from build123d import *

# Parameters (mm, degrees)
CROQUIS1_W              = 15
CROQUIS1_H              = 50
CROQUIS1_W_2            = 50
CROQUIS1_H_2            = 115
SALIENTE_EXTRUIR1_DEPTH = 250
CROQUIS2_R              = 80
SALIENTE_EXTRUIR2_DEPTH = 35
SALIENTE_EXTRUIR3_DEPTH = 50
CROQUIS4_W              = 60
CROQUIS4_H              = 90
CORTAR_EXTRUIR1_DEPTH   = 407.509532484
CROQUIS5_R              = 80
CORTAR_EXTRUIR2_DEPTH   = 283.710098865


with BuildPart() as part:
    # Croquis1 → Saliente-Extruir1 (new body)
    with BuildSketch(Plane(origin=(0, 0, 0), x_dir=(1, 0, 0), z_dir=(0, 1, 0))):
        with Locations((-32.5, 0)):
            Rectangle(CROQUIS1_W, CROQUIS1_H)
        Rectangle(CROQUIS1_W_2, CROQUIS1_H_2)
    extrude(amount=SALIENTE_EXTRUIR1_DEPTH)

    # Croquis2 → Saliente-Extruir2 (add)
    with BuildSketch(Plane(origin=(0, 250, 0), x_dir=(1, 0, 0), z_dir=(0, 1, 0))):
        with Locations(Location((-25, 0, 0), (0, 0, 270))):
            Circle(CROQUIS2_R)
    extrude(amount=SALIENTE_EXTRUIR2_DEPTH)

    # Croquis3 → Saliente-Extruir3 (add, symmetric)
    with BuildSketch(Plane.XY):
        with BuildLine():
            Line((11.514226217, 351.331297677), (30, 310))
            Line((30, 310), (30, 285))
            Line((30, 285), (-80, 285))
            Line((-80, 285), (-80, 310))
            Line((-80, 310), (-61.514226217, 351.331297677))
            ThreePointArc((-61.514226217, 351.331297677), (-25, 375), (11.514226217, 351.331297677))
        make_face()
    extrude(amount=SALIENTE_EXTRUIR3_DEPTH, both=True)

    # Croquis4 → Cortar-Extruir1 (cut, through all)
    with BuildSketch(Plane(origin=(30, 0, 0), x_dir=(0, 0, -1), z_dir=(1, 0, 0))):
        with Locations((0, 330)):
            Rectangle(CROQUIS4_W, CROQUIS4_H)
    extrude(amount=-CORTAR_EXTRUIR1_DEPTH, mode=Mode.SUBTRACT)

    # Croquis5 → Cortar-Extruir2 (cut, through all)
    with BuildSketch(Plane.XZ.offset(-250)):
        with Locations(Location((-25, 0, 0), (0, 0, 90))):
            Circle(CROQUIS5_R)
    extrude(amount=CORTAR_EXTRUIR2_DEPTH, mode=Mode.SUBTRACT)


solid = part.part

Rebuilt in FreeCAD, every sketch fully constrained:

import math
import FreeCAD as App
import Part
import Sketcher

V = App.Vector
Q = App.Units.Quantity

doc = App.newDocument("Part")
params = doc.addObject("Spreadsheet::Sheet", "Params")
for row, (alias, value) in enumerate([
    ("sketch1_width", "15 mm"),
    ("sketch1_width2", "50 mm"),
    ("sketch1_height", "115 mm"),
    ("pad1_length", "250 mm"),
    ("sketch2_diameter", "160 mm"),
    ("pad2_length", "35 mm"),
    ("sketch3_radius", "40 mm"),
    ("sketch3_width", "110 mm"),
    ("sketch3_height", "25 mm"),
    ("pad3_length", "100 mm"),
    ("sketch4_width", "90 mm"),
    ("sketch4_height", "60 mm"),
    ("sketch5_diameter", "160 mm"),
], start=1):
    params.set(f"A{row}", alias)
    params.set(f"B{row}", "=" + value)
    params.setAlias(f"B{row}", alias)

body = doc.addObject("PartDesign::Body", "Body")

# Sketch on XZ plane
sketch1 = body.newObject("Sketcher::SketchObject", "Sketch")
sketch1.AttachmentSupport = (doc.getObject("XZ_Plane"), [""])
sketch1.MapMode = "FlatFace"
sketch1.addGeometry([
    Part.LineSegment(V(-40, -25, 0), V(-40, 25, 0)),  # 0
    Part.LineSegment(V(-40, 25, 0), V(-25, 25, 0)),  # 1
    Part.LineSegment(V(-25, 25, 0), V(-25, 58, 0)),  # 2
    Part.LineSegment(V(-25, 58, 0), V(25, 58, 0)),  # 3
    Part.LineSegment(V(25, 58, 0), V(25, -58, 0)),  # 4
    Part.LineSegment(V(25, -58, 0), V(-25, -58, 0)),  # 5
    Part.LineSegment(V(-25, -58, 0), V(-25, -25, 0)),  # 6
    Part.LineSegment(V(-25, -25, 0), V(-40, -25, 0)),  # 7
], False)
sketch1.addConstraint([
    Sketcher.Constraint("Coincident", 0, 2, 1, 1),
    Sketcher.Constraint("Coincident", 1, 2, 2, 1),
    Sketcher.Constraint("Coincident", 2, 2, 3, 1),
    Sketcher.Constraint("Coincident", 3, 2, 4, 1),
    Sketcher.Constraint("Coincident", 4, 2, 5, 1),
    Sketcher.Constraint("Coincident", 5, 2, 6, 1),
    Sketcher.Constraint("Coincident", 6, 2, 7, 1),
    Sketcher.Constraint("Coincident", 7, 2, 0, 1),
    Sketcher.Constraint("Vertical", 0),
    Sketcher.Constraint("Horizontal", 1),
    Sketcher.Constraint("Vertical", 2),
    Sketcher.Constraint("Horizontal", 3),
    Sketcher.Constraint("Vertical", 4),
    Sketcher.Constraint("Horizontal", 5),
    Sketcher.Constraint("Vertical", 6),
    Sketcher.Constraint("Horizontal", 7),
    Sketcher.Constraint("Symmetric", 2, 2, 4, 2, -1, 1),
    Sketcher.Constraint("Symmetric", 1, 2, 6, 2, -1),
    Sketcher.Constraint("Equal", 5, 0),
    Sketcher.Constraint("DistanceX", 1, 1, 1, 2, Q("15 mm")),
    Sketcher.Constraint("DistanceX", 3, 1, 3, 2, Q("50 mm")),
    Sketcher.Constraint("DistanceY", 4, 2, 4, 1, Q("115 mm")),
])
sketch1.setExpression("Constraints[19]", "Params.sketch1_width")
sketch1.setExpression("Constraints[20]", "Params.sketch1_width2")
sketch1.setExpression("Constraints[21]", "Params.sketch1_height")
pad1 = body.newObject("PartDesign::Pad", "Pad")
pad1.Profile = sketch1
pad1.setExpression("Length", "Params.pad1_length")
pad1.Reversed = True

# Sketch on XZ plane
sketch2 = body.newObject("Sketcher::SketchObject", "Sketch001")
sketch2.AttachmentSupport = (doc.getObject("XZ_Plane"), [""])
sketch2.MapMode = "FlatFace"
sketch2.AttachmentOffset = App.Placement(V(0, 0, -250), App.Rotation())
sketch2.addGeometry(Part.Circle(V(-25, 0, 0), V(0, 0, 1), 80), False)
sketch2.addConstraint([
    Sketcher.Constraint("PointOnObject", 0, 3, -1),
    Sketcher.Constraint("Diameter", 0, Q("160 mm")),
    Sketcher.Constraint("DistanceX", 0, 3, -1, 1, Q("25 mm")),
])
sketch2.setExpression("Constraints[1]", "Params.sketch2_diameter")
pad2 = body.newObject("PartDesign::Pad", "Pad001")
pad2.Profile = sketch2
pad2.setExpression("Length", "Params.pad2_length")
pad2.Reversed = True

# Sketch on XY plane
sketch3 = body.newObject("Sketcher::SketchObject", "Sketch002")
sketch3.AttachmentSupport = (doc.getObject("XY_Plane"), [""])
sketch3.MapMode = "FlatFace"
sketch3.addGeometry([
    Part.LineSegment(V(30, 310, 0), V(12, 351, 0)),  # 0
    Part.ArcOfCircle(Part.Circle(V(-25, 335, 0), V(0, 0, 1), 40), math.radians(24), math.radians(156)),  # 1
    Part.LineSegment(V(-62, 351, 0), V(-80, 310, 0)),  # 2
    Part.LineSegment(V(-80, 310, 0), V(-80, 285, 0)),  # 3
    Part.LineSegment(V(-80, 285, 0), V(30, 285, 0)),  # 4
    Part.LineSegment(V(30, 285, 0), V(30, 310, 0)),  # 5
], False)
sketch3.addConstraint([
    Sketcher.Constraint("Tangent", 0, 2, 1, 1),
    Sketcher.Constraint("Tangent", 1, 2, 2, 1),
    Sketcher.Constraint("Coincident", 2, 2, 3, 1),
    Sketcher.Constraint("Coincident", 3, 2, 4, 1),
    Sketcher.Constraint("Coincident", 4, 2, 5, 1),
    Sketcher.Constraint("Coincident", 5, 2, 0, 1),
    Sketcher.Constraint("Vertical", 3),
    Sketcher.Constraint("Horizontal", 4),
    Sketcher.Constraint("Vertical", 5),
    Sketcher.Constraint("Horizontal", 0, 2, 1, 2),
    Sketcher.Constraint("Horizontal", 2, 2, 5, 2),
    Sketcher.Constraint("Radius", 1, Q("40 mm")),
    Sketcher.Constraint("DistanceX", 4, 1, 4, 2, Q("110 mm")),
    Sketcher.Constraint("DistanceY", 3, 2, 3, 1, Q("25 mm")),
    Sketcher.Constraint("DistanceX", 1, 3, -1, 1, Q("25 mm")),
    Sketcher.Constraint("DistanceY", -1, 1, 1, 3, Q("335 mm")),
    Sketcher.Constraint("DistanceY", -1, 1, 2, 2, Q("310 mm")),
])
sketch3.setExpression("Constraints[11]", "Params.sketch3_radius")
sketch3.setExpression("Constraints[12]", "Params.sketch3_width")
sketch3.setExpression("Constraints[13]", "Params.sketch3_height")
pad3 = body.newObject("PartDesign::Pad", "Pad002")
pad3.Profile = sketch3
pad3.setExpression("Length", "Params.pad3_length")
pad3.Midplane = True

# Sketch on YZ plane
sketch4 = body.newObject("Sketcher::SketchObject", "Sketch003")
sketch4.AttachmentSupport = (doc.getObject("YZ_Plane"), [""])
sketch4.MapMode = "FlatFace"
sketch4.AttachmentOffset = App.Placement(V(0, 0, 30), App.Rotation())
sketch4.addGeometry([
    Part.LineSegment(V(375, 30, 0), V(285, 30, 0)),
    Part.LineSegment(V(285, 30, 0), V(285, -30, 0)),
    Part.LineSegment(V(285, -30, 0), V(375, -30, 0)),
    Part.LineSegment(V(375, -30, 0), V(375, 30, 0)),
], False)
sketch4.addConstraint([
    Sketcher.Constraint("Coincident", 0, 2, 1, 1),
    Sketcher.Constraint("Coincident", 1, 2, 2, 1),
    Sketcher.Constraint("Coincident", 2, 2, 3, 1),
    Sketcher.Constraint("Coincident", 3, 2, 0, 1),
    Sketcher.Constraint("Horizontal", 0),
    Sketcher.Constraint("Vertical", 1),
    Sketcher.Constraint("Horizontal", 2),
    Sketcher.Constraint("Vertical", 3),
    Sketcher.Constraint("DistanceX", 0, 2, 0, 1, Q("90 mm")),
    Sketcher.Constraint("DistanceY", 1, 2, 1, 1, Q("60 mm")),
    Sketcher.Constraint("DistanceX", -1, 1, 0, 2, Q("285 mm")),
    Sketcher.Constraint("DistanceY", -1, 1, 0, 2, Q("30 mm")),
])
sketch4.setExpression("Constraints[8]", "Params.sketch4_width")
sketch4.setExpression("Constraints[9]", "Params.sketch4_height")
pocket1 = body.newObject("PartDesign::Pocket", "Pocket")
pocket1.Profile = sketch4
pocket1.Type = "ThroughAll"

# Sketch on XZ plane
sketch5 = body.newObject("Sketcher::SketchObject", "Sketch004")
sketch5.AttachmentSupport = (doc.getObject("XZ_Plane"), [""])
sketch5.MapMode = "FlatFace"
sketch5.AttachmentOffset = App.Placement(V(0, 0, -250), App.Rotation())
sketch5.addGeometry(Part.Circle(V(-25, 0, 0), V(0, 0, 1), 80), False)
sketch5.addConstraint([
    Sketcher.Constraint("PointOnObject", 0, 3, -1),
    Sketcher.Constraint("Diameter", 0, Q("160 mm")),
    Sketcher.Constraint("DistanceX", 0, 3, -1, 1, Q("25 mm")),
])
sketch5.setExpression("Constraints[1]", "Params.sketch5_diameter")
pocket2 = body.newObject("PartDesign::Pocket", "Pocket001")
pocket2.Profile = sketch5
pocket2.Type = "ThroughAll"
pocket2.Reversed = True

doc.recompute()
